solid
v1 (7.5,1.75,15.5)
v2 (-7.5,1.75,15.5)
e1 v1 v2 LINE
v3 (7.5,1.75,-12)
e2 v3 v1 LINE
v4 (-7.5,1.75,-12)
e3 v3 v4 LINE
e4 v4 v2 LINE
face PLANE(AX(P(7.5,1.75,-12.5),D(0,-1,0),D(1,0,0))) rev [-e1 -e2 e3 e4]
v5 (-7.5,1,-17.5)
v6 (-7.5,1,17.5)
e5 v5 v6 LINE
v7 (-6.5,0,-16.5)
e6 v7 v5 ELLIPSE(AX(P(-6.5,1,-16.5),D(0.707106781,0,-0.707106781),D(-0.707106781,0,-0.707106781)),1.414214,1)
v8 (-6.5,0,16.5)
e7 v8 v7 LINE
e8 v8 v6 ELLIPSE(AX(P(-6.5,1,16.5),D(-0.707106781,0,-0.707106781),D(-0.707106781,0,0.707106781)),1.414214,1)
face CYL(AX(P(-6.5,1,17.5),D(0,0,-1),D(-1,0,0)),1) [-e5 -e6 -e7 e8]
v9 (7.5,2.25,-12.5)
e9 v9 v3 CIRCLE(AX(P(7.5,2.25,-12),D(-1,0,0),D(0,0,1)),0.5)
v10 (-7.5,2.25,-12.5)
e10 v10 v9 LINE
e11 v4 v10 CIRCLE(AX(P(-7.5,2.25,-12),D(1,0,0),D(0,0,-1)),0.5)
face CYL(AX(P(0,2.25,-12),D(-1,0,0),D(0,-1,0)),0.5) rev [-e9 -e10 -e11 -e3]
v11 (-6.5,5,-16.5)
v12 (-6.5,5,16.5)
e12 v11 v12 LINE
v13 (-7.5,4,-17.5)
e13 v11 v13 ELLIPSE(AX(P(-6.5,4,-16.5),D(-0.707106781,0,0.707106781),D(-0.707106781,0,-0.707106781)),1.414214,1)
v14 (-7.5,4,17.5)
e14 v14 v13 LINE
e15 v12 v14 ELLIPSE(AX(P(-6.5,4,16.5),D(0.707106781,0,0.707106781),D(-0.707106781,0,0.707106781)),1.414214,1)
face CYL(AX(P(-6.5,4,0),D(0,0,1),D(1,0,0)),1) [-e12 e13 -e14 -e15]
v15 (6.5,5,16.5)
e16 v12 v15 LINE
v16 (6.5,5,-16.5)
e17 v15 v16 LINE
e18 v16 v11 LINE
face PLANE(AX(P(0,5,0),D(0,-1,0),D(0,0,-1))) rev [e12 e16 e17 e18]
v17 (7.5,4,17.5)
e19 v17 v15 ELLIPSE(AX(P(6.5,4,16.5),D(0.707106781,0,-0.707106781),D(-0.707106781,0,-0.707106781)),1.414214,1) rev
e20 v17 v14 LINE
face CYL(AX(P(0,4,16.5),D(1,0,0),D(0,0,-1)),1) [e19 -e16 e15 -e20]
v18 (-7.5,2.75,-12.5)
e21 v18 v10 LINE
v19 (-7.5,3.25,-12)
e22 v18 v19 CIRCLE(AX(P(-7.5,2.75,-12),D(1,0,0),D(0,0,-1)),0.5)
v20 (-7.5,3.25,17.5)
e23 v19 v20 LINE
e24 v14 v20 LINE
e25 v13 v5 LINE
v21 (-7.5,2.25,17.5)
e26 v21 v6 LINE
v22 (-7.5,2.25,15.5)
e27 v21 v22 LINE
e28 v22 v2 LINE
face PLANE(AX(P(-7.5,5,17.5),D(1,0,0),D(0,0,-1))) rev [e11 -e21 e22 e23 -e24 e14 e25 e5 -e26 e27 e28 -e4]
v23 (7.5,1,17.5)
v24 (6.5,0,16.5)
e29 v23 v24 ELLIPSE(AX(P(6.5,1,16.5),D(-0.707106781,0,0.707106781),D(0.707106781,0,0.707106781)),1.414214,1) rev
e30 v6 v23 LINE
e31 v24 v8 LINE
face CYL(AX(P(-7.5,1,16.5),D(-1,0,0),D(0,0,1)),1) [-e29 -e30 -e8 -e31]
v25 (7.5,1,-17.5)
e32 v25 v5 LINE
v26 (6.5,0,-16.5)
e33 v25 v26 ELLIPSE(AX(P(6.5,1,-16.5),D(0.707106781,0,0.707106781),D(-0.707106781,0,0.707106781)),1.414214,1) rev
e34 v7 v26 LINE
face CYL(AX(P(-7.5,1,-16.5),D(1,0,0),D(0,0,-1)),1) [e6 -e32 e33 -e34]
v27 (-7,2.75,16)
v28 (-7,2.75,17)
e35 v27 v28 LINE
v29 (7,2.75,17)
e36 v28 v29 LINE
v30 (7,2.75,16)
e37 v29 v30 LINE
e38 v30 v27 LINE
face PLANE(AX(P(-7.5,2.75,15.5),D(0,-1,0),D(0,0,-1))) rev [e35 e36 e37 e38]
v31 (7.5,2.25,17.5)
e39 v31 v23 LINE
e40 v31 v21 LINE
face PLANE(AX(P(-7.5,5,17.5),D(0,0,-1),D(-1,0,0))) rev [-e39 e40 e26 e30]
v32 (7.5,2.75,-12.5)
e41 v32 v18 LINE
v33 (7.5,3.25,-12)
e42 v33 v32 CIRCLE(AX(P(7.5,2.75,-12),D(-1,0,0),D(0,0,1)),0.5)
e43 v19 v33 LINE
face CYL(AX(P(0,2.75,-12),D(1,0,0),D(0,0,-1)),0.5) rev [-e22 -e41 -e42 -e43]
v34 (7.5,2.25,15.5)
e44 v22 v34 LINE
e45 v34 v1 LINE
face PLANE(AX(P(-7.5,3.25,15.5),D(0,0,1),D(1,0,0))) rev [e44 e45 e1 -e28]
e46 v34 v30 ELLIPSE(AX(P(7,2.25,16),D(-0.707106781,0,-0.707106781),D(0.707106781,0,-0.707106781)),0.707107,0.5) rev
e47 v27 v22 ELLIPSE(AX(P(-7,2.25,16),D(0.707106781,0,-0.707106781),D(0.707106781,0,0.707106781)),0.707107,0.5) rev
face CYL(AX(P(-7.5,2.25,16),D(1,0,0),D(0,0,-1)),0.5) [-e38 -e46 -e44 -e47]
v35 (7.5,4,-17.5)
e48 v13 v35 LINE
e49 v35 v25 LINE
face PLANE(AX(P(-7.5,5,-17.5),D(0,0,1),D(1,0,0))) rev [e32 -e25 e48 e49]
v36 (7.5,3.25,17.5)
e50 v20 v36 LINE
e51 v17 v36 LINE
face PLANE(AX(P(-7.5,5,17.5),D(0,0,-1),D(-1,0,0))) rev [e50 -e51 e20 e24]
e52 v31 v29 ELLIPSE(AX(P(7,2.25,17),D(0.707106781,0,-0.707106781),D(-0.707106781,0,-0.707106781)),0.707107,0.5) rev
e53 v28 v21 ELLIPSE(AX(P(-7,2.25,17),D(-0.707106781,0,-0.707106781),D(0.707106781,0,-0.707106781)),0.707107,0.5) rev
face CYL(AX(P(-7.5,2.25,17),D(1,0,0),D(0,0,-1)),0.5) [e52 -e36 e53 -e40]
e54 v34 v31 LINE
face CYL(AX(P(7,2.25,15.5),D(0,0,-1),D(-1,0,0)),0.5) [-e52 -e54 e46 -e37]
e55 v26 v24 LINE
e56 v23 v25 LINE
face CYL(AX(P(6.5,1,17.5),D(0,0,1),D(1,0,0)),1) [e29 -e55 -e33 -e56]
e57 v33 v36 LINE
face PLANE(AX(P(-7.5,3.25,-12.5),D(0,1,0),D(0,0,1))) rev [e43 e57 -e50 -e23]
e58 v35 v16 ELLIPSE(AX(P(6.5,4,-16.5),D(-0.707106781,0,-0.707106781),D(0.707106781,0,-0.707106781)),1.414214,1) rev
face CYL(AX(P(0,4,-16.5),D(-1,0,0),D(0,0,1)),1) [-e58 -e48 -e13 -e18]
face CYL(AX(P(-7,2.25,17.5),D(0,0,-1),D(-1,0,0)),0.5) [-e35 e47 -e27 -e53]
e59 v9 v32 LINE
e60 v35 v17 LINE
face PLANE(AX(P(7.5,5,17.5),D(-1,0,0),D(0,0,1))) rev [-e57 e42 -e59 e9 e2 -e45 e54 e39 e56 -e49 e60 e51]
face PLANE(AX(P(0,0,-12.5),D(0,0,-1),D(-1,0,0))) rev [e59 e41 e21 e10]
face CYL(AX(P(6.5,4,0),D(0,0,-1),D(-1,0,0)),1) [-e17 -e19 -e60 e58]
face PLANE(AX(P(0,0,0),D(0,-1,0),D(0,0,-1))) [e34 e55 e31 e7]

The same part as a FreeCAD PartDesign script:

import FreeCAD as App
import Part
import Sketcher

V = App.Vector


def edges_at(feature, points):
    """Names of the edges that pass closest to the given points."""
    edges = feature.Shape.Edges
    near = lambda p: min(range(len(edges)), key=lambda i: edges[i].distToShape(Part.Vertex(*p))[0])
    return sorted({f"Edge{near(p) + 1}" for p in points})

doc = App.newDocument("Part")
params = doc.addObject("Spreadsheet::Sheet", "Params")
for row, (alias, value) in enumerate([
    ("sketch1_width", "15 mm"),
    ("sketch1_height", "35 mm"),
    ("pad1_length", "5 mm"),
    ("sketch2_width", "15 mm"),
    ("sketch2_height", "1.5 mm"),
    ("pocket1_length", "30 mm"),
    ("fillet_radius", "1 mm"),
    ("fillet2_radius", "1 mm"),
    ("fillet3_radius", "0.5 mm"),
    ("fillet4_radius", "0.5 mm"),
    ("sketch3_width", "15 mm"),
    ("sketch3_height", "2 mm"),
    ("pad2_length", "1.5 mm"),
    ("sketch4_height", "2 mm"),
    ("sketch4_width", "0.5 mm"),
    ("pocket2_length", "15 mm"),
    ("fillet5_radius", "0.5 mm"),
], start=1):
    params.set(f"A{row}", alias)
    params.set(f"B{row}", "=" + value)
    params.setAlias(f"B{row}", alias)

body = doc.addObject("PartDesign::Body", "Body")

# Sketch on XZ plane
sketch1 = body.newObject("Sketcher::SketchObject", "Sketch")
sketch1.AttachmentSupport = (doc.getObject("XZ_Plane"), [""])
sketch1.MapMode = "FlatFace"
sketch1.addGeometry([
    Part.LineSegment(V(-8, -18, 0), V(-8, 18, 0)),
    Part.LineSegment(V(-8, 18, 0), V(8, 18, 0)),
    Part.LineSegment(V(8, 18, 0), V(8, -18, 0)),
    Part.LineSegment(V(8, -18, 0), V(-8, -18, 0)),
], False)
sketch1.addConstraint([
    Sketcher.Constraint("Coincident", 0, 2, 1, 1),
    Sketcher.Constraint("Coincident", 1, 2, 2, 1),
    Sketcher.Constraint("Coincident", 2, 2, 3, 1),
    Sketcher.Constraint("Coincident", 3, 2, 0, 1),
    Sketcher.Constraint("Vertical", 0),
    Sketcher.Constraint("Horizontal", 1),
    Sketcher.Constraint("Vertical", 2),
    Sketcher.Constraint("Horizontal", 3),
    Sketcher.Constraint("Symmetric", 0, 2, 2, 2, -1, 1),
    Sketcher.Constraint("DistanceX", 1, 1, 1, 2, 15.0),
    Sketcher.Constraint("DistanceY", 0, 1, 0, 2, 35.0),
])
sketch1.setExpression("Constraints[9]", "Params.sketch1_width")
sketch1.setExpression("Constraints[10]", "Params.sketch1_height")
pad1 = body.newObject("PartDesign::Pad", "Pad")
pad1.Profile = sketch1
pad1.setExpression("Length", "Params.pad1_length")
pad1.Reversed = True

# Sketch on XY plane
sketch2 = body.newObject("Sketcher::SketchObject", "Sketch001")
sketch2.AttachmentSupport = (doc.getObject("XY_Plane"), [""])
sketch2.MapMode = "FlatFace"
sketch2.AttachmentOffset = App.Placement(V(0, 0, 17.5), App.Rotation())
sketch2.addGeometry([
    Part.LineSegment(V(-7.5, 3.2, 0), V(-7.5, 1.8, 0)),
    Part.LineSegment(V(-7.5, 1.8, 0), V(7.5, 1.8, 0)),
    Part.LineSegment(V(7.5, 1.8, 0), V(7.5, 3.2, 0)),
    Part.LineSegment(V(7.5, 3.2, 0), V(-7.5, 3.2, 0)),
], False)
sketch2.addConstraint([
    Sketcher.Constraint("Coincident", 0, 2, 1, 1),
    Sketcher.Constraint("Coincident", 1, 2, 2, 1),
    Sketcher.Constraint("Coincident", 2, 2, 3, 1),
    Sketcher.Constraint("Coincident", 3, 2, 0, 1),
    Sketcher.Constraint("Vertical", 0),
    Sketcher.Constraint("Horizontal", 1),
    Sketcher.Constraint("Vertical", 2),
    Sketcher.Constraint("Horizontal", 3),
    Sketcher.Constraint("DistanceX", 1, 1, 1, 2, 15.0),
    Sketcher.Constraint("DistanceY", 0, 2, 0, 1, 1.5),
    Sketcher.Constraint("DistanceX", 0, 2, -1, 1, 7.5),
    Sketcher.Constraint("DistanceY", -1, 1, 0, 2, 1.75),
])
sketch2.setExpression("Constraints[8]", "Params.sketch2_width")
sketch2.setExpression("Constraints[9]", "Params.sketch2_height")
pocket1 = body.newObject("PartDesign::Pocket", "Pocket")
pocket1.Profile = sketch2
pocket1.setExpression("Length", "Params.pocket1_length")
doc.recompute()

fillet = body.newObject("PartDesign::Fillet", "Fillet")
fillet.Base = (pocket1, edges_at(pocket1, [
    (-7.5, 5, 0),
    (0, 5, 17.5),
    (7.5, 5, 0),
    (0, 5, -17.5),
]))
fillet.setExpression("Radius", "Params.fillet_radius")
doc.recompute()

fillet2 = body.newObject("PartDesign::Fillet", "Fillet001")
fillet2.Base = (fillet, edges_at(fillet, [
    (0, 0, 17.5),
    (-7.5, 0, 0),
    (0, 0, -17.5),
    (7.5, 0, 0),
]))
fillet2.setExpression("Radius", "Params.fillet2_radius")
doc.recompute()

fillet3 = body.newObject("PartDesign::Fillet", "Fillet002")
fillet3.Base = (fillet2, edges_at(fillet2, [(0, 3.25, -12.5)]))
fillet3.setExpression("Radius", "Params.fillet3_radius")
doc.recompute()

fillet4 = body.newObject("PartDesign::Fillet", "Fillet003")
fillet4.Base = (fillet3, edges_at(fillet3, [(0, 1.75, -12.5)]))
fillet4.setExpression("Radius", "Params.fillet4_radius")

# Sketch on XZ plane
sketch3 = body.newObject("Sketcher::SketchObject", "Sketch002")
sketch3.AttachmentSupport = (doc.getObject("XZ_Plane"), [""])
sketch3.MapMode = "FlatFace"
sketch3.AttachmentOffset = App.Placement(V(0, 0, -1.75), App.Rotation())
sketch3.addGeometry([
    Part.LineSegment(V(-7.5, 15.5, 0), V(-7.5, 17.5, 0)),
    Part.LineSegment(V(-7.5, 17.5, 0), V(7.5, 17.5, 0)),
    Part.LineSegment(V(7.5, 17.5, 0), V(7.5, 15.5, 0)),
    Part.LineSegment(V(7.5, 15.5, 0), V(-7.5, 15.5, 0)),
], False)
sketch3.addConstraint([
    Sketcher.Constraint("Coincident", 0, 2, 1, 1),
    Sketcher.Constraint("Coincident", 1, 2, 2, 1),
    Sketcher.Constraint("Coincident", 2, 2, 3, 1),
    Sketcher.Constraint("Coincident", 3, 2, 0, 1),
    Sketcher.Constraint("Vertical", 0),
    Sketcher.Constraint("Horizontal", 1),
    Sketcher.Constraint("Vertical", 2),
    Sketcher.Constraint("Horizontal", 3),
    Sketcher.Constraint("DistanceX", 1, 1, 1, 2, 15.0),
    Sketcher.Constraint("DistanceY", 0, 1, 0, 2, 2.0),
    Sketcher.Constraint("DistanceX", 0, 2, -1, 1, 7.5),
    Sketcher.Constraint("DistanceY", -1, 1, 0, 2, 17.5),
])
sketch3.setExpression("Constraints[8]", "Params.sketch3_width")
sketch3.setExpression("Constraints[9]", "Params.sketch3_height")
pad2 = body.newObject("PartDesign::Pad", "Pad001")
pad2.Profile = sketch3
pad2.setExpression("Length", "Params.pad2_length")
pad2.Reversed = True

# Sketch on YZ plane
sketch4 = body.newObject("Sketcher::SketchObject", "Sketch003")
sketch4.AttachmentSupport = (doc.getObject("YZ_Plane"), [""])
sketch4.MapMode = "FlatFace"
sketch4.AttachmentOffset = App.Placement(V(0, 0, 7.5), App.Rotation())
sketch4.addGeometry([
    Part.LineSegment(V(3.2, 17.5, 0), V(2.8, 17.5, 0)),
    Part.LineSegment(V(2.8, 17.5, 0), V(2.8, 15.5, 0)),
    Part.LineSegment(V(2.8, 15.5, 0), V(3.2, 15.5, 0)),
    Part.LineSegment(V(3.2, 15.5, 0), V(3.2, 17.5, 0)),
], False)
sketch4.addConstraint([
    Sketcher.Constraint("Coincident", 0, 2, 1, 1),
    Sketcher.Constraint("Coincident", 1, 2, 2, 1),
    Sketcher.Constraint("Coincident", 2, 2, 3, 1),
    Sketcher.Constraint("Coincident", 3, 2, 0, 1),
    Sketcher.Constraint("Horizontal", 0),
    Sketcher.Constraint("Vertical", 1),
    Sketcher.Constraint("Horizontal", 2),
    Sketcher.Constraint("Vertical", 3),
    Sketcher.Constraint("DistanceY", 1, 2, 1, 1, 2.0),
    Sketcher.Constraint("DistanceX", 0, 2, 0, 1, 0.5),
    Sketcher.Constraint("DistanceY", -1, 1, 0, 2, 17.5),
    Sketcher.Constraint("DistanceX", -1, 1, 0, 2, 2.75),
])
sketch4.setExpression("Constraints[8]", "Params.sketch4_height")
sketch4.setExpression("Constraints[9]", "Params.sketch4_width")
pocket2 = body.newObject("PartDesign::Pocket", "Pocket001")
pocket2.Profile = sketch4
pocket2.setExpression("Length", "Params.pocket2_length")
doc.recompute()

fillet5 = body.newObject("PartDesign::Fillet", "Fillet004")
fillet5.Base = (pocket2, edges_at(pocket2, [
    (-7.5, 2.75, 16.5),
    (0, 2.75, 15.5),
    (0, 2.75, 17.5),
    (7.5, 2.75, 16.5),
]))
fillet5.setExpression("Radius", "Params.fillet5_radius")

doc.recompute()
